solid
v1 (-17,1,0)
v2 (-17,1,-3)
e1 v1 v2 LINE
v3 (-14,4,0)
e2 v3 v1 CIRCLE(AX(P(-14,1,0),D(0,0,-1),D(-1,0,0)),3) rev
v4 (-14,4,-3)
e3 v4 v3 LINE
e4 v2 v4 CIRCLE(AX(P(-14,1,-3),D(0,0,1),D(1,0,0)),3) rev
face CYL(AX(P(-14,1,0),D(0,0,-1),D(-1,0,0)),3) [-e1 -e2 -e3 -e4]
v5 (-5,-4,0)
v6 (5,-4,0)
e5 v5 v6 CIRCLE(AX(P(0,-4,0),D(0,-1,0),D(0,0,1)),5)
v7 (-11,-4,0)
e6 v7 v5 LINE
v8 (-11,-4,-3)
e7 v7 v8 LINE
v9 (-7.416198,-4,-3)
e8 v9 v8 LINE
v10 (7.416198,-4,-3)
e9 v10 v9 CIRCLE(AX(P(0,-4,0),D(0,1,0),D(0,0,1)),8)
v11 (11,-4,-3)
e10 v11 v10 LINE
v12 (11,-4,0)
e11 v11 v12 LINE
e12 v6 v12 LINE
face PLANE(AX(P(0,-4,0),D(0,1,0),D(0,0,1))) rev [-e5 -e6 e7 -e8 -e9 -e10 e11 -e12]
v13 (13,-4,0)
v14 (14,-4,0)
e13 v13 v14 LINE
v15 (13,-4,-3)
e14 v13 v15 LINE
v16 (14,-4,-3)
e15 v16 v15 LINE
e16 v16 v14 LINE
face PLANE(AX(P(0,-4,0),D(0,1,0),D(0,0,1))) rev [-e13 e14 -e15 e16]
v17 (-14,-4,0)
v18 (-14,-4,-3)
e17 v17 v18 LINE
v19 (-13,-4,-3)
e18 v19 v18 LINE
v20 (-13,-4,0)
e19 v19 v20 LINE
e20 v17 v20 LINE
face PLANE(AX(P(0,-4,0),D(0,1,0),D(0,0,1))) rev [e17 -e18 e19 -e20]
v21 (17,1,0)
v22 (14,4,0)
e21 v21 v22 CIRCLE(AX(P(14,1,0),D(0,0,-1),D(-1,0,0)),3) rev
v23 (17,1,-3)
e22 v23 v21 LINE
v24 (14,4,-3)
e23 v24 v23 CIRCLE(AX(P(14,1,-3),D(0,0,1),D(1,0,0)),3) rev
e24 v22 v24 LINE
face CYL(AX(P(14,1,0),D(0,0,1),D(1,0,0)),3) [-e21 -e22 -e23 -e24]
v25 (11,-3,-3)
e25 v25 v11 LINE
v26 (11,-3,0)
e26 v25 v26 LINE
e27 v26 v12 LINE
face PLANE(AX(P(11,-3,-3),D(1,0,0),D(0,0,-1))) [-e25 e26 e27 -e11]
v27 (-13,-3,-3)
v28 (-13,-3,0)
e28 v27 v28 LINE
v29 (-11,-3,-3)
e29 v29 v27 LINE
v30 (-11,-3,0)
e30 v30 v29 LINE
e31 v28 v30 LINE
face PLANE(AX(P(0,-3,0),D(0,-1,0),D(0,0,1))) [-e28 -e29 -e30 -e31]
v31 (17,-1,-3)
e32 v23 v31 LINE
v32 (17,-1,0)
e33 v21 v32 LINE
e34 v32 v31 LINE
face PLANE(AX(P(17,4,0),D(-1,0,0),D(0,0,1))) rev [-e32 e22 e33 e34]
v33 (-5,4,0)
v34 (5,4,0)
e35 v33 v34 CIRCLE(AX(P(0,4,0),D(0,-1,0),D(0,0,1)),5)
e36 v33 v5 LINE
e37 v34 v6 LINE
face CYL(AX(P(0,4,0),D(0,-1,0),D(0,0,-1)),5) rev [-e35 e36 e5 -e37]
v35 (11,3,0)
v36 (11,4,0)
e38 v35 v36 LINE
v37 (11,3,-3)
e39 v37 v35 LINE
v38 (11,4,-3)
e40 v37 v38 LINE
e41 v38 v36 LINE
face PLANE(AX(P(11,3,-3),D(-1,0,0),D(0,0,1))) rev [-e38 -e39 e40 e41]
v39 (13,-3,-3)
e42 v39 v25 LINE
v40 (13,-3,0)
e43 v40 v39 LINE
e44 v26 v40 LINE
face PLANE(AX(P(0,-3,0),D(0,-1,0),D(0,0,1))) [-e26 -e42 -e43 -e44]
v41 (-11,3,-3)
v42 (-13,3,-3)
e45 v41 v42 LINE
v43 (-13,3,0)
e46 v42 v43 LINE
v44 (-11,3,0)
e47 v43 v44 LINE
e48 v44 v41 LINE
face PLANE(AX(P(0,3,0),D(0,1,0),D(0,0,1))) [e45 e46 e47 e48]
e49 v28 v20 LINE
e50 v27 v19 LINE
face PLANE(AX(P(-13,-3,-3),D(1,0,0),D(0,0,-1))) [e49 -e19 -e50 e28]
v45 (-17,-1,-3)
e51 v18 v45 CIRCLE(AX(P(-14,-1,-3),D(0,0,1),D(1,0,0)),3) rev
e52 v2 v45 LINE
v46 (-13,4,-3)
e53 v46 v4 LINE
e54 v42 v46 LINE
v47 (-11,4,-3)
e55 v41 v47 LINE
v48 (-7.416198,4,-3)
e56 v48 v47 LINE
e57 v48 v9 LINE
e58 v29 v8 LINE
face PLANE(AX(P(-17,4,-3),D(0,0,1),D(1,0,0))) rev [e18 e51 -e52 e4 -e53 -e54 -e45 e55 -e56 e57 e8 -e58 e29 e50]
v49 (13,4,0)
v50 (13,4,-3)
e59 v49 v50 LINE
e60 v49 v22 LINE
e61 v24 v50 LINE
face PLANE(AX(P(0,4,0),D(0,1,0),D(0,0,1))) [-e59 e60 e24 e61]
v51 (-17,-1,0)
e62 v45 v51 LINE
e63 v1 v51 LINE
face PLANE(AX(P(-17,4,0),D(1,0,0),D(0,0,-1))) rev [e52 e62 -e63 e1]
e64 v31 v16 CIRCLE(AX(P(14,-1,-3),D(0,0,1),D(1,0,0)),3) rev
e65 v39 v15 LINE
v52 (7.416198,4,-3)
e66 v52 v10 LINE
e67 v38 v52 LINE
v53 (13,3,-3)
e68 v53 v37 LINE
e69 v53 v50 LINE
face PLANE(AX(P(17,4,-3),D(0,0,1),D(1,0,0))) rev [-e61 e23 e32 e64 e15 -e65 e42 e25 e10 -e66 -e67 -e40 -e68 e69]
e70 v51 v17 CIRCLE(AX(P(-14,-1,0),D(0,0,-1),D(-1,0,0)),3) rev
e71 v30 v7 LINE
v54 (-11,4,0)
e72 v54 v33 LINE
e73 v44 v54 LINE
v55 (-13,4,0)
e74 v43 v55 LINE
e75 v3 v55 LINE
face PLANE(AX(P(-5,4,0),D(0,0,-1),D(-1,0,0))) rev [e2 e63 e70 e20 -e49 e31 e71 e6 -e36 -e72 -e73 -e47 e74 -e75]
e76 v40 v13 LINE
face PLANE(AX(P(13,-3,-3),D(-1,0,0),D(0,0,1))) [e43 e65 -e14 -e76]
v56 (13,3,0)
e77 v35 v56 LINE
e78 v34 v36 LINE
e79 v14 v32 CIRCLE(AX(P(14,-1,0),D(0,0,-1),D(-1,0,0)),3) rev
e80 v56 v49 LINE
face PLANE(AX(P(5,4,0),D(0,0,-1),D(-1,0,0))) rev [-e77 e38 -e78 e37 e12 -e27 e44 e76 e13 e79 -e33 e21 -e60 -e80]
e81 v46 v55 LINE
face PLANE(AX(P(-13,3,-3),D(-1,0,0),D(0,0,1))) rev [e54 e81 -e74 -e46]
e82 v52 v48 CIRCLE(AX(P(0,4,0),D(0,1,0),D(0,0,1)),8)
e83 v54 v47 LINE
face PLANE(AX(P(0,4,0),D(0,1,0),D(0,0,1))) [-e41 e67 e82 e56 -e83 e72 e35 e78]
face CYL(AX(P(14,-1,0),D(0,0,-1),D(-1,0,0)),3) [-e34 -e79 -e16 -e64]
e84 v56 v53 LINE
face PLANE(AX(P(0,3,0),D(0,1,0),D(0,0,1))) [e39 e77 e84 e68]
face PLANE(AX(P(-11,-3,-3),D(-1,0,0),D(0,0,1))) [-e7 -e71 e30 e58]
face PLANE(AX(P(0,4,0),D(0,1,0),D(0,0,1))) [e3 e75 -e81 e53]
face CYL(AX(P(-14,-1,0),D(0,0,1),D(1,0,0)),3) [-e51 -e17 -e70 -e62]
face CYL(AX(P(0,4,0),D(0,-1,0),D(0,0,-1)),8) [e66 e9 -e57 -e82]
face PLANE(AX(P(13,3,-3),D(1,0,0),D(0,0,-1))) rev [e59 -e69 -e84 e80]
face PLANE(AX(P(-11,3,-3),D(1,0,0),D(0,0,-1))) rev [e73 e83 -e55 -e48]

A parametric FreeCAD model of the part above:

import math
import FreeCAD as App
import Part
import Sketcher


def edges_at(feature, points):
    """Names of the edges that pass closest to the given points."""
    edges = feature.Shape.Edges
    near = lambda p: min(range(len(edges)), key=lambda i: edges[i].distToShape(Part.Vertex(*p))[0])
    return sorted({f"Edge{near(p) + 1}" for p in points})


def add_polygon(sketch, points):
    """Adds a closed chain of lines whose ends are joined by coincident constraints."""
    first, n = sketch.GeometryCount, len(points)
    for a, b in zip(points, points[1:] + points[:1]):
        sketch.addGeometry(Part.LineSegment(App.Vector(*a, 0), App.Vector(*b, 0)), False)
    for i in range(n):
        sketch.addConstraint(Sketcher.Constraint("Coincident", first + i, 2, first + (i + 1) % n, 1))

doc = App.newDocument("Part")
body = doc.addObject("PartDesign::Body", "Body")

# Sketch on XZ plane
sketch1 = body.newObject("Sketcher::SketchObject", "Sketch")
sketch1.AttachmentSupport = (doc.getObject("XZ_Plane"), [""])
sketch1.MapMode = "FlatFace"
sketch1.addGeometry(Part.LineSegment(App.Vector(-17, 0, 0), App.Vector(-5, 0, 0)), False)
sketch1.addGeometry(Part.ArcOfCircle(Part.Circle(App.Vector(0, 0, 0), App.Vector(0, 0, 1), 5), math.radians(180), math.radians(360)), False)
sketch1.addGeometry(Part.LineSegment(App.Vector(5, 0, 0), App.Vector(17, 0, 0)), False)
sketch1.addGeometry(Part.LineSegment(App.Vector(17, 0, 0), App.Vector(17, -3, 0)), False)
sketch1.addGeometry(Part.LineSegment(App.Vector(17, -3, 0), App.Vector(7.416198, -3, 0)), False)
sketch1.addGeometry(Part.ArcOfCircle(Part.Circle(App.Vector(0, 0, 0), App.Vector(0, 0, 1), 8), math.radians(-157.975687), math.radians(-22.024313)), False)
sketch1.addGeometry(Part.LineSegment(App.Vector(-7.416198, -3, 0), App.Vector(-17, -3, 0)), False)
sketch1.addGeometry(Part.LineSegment(App.Vector(-17, -3, 0), App.Vector(-17, 0, 0)), False)
sketch1.addConstraint(Sketcher.Constraint("Coincident", 0, 2, 1, 1))
sketch1.addConstraint(Sketcher.Constraint("Coincident", 1, 2, 2, 1))
sketch1.addConstraint(Sketcher.Constraint("Coincident", 2, 2, 3, 1))
sketch1.addConstraint(Sketcher.Constraint("Coincident", 3, 2, 4, 1))
sketch1.addConstraint(Sketcher.Constraint("Coincident", 4, 2, 5, 2))
sketch1.addConstraint(Sketcher.Constraint("Coincident", 5, 1, 6, 1))
sketch1.addConstraint(Sketcher.Constraint("Coincident", 6, 2, 7, 1))
sketch1.addConstraint(Sketcher.Constraint("Coincident", 7, 2, 0, 1))
sketch1.addConstraint(Sketcher.Constraint("Horizontal", 0))
sketch1.addConstraint(Sketcher.Constraint("Horizontal", 2))
sketch1.addConstraint(Sketcher.Constraint("Vertical", 3))
sketch1.addConstraint(Sketcher.Constraint("Horizontal", 4))
sketch1.addConstraint(Sketcher.Constraint("Horizontal", 6))
sketch1.addConstraint(Sketcher.Constraint("Vertical", 7))
sketch1.addConstraint(Sketcher.Constraint("Coincident", 1, 3, -1, 1))
sketch1.addConstraint(Sketcher.Constraint("Coincident", 5, 3, -1, 1))
sketch1.addConstraint(Sketcher.Constraint("Symmetric", 2, 2, 7, 2, -1, 1))
sketch1.addConstraint(Sketcher.Constraint("PointOnObject", 0, 2, -1))
sketch1.addConstraint(Sketcher.Constraint("Horizontal", 4, 2, 5, 1))
sketch1.addConstraint(Sketcher.Constraint("Radius", 1, 5.0))
sketch1.addConstraint(Sketcher.Constraint("Radius", 5, 8.0))
sketch1.addConstraint(Sketcher.Constraint("DistanceX", 0, 1, 0, 2, 12.0))
sketch1.addConstraint(Sketcher.Constraint("DistanceY", 3, 2, 3, 1, 3.0))
pad1 = body.newObject("PartDesign::Pad", "Pad")
pad1.Profile = sketch1
pad1.Length = 8
pad1.Midplane = True

# Sketch on XZ plane
sketch2 = body.newObject("Sketcher::SketchObject", "Sketch001")
sketch2.AttachmentSupport = (doc.getObject("XZ_Plane"), [""])
sketch2.MapMode = "FlatFace"
sketch2.AttachmentOffset = App.Placement(App.Vector(0, 0, -4), App.Rotation())
add_polygon(sketch2, [(-13, -3), (-13, 0), (-11, 0), (-11, -3)])  # lines 0-3
add_polygon(sketch2, [(11, -3), (11, 0), (13, 0), (13, -3)])  # lines 4-7
sketch2.addConstraint(Sketcher.Constraint("Vertical", 0))
sketch2.addConstraint(Sketcher.Constraint("Horizontal", 1))
sketch2.addConstraint(Sketcher.Constraint("Vertical", 2))
sketch2.addConstraint(Sketcher.Constraint("Horizontal", 3))
sketch2.addConstraint(Sketcher.Constraint("Vertical", 4))
sketch2.addConstraint(Sketcher.Constraint("Horizontal", 5))
sketch2.addConstraint(Sketcher.Constraint("Vertical", 6))
sketch2.addConstraint(Sketcher.Constraint("Horizontal", 7))
sketch2.addConstraint(Sketcher.Constraint("Symmetric", 1, 2, 4, 2, -1, 1))
sketch2.addConstraint(Sketcher.Constraint("Symmetric", 0, 2, 5, 2, -2))
sketch2.addConstraint(Sketcher.Constraint("Horizontal", 3, 2, 6, 2))
sketch2.addConstraint(Sketcher.Constraint("DistanceX", 1, 1, 1, 2, 2.0))
sketch2.addConstraint(Sketcher.Constraint("DistanceY", 0, 1, 0, 2, 3.0))
sketch2.addConstraint(Sketcher.Constraint("DistanceX", 0, 2, -1, 1, 13.0))
pocket1 = body.newObject("PartDesign::Pocket", "Pocket")
pocket1.Profile = sketch2
pocket1.Length = 1
pocket1.Reversed = True
doc.recompute()

mirrored = body.newObject("PartDesign::Mirrored", "Mirrored")
mirrored.Originals = [pocket1]
mirrored.MirrorPlane = (doc.getObject("XZ_Plane"), [""])
body.Tip = mirrored
doc.recompute()

fillet = body.newObject("PartDesign::Fillet", "Fillet")
fillet.Base = (mirrored, edges_at(mirrored, [
    (17, 4, -1.5),
    (-17, 4, -1.5),
    (-17, -4, -1.5),
    (17, -4, -1.5),
]))
fillet.Radius = 3

doc.recompute()
